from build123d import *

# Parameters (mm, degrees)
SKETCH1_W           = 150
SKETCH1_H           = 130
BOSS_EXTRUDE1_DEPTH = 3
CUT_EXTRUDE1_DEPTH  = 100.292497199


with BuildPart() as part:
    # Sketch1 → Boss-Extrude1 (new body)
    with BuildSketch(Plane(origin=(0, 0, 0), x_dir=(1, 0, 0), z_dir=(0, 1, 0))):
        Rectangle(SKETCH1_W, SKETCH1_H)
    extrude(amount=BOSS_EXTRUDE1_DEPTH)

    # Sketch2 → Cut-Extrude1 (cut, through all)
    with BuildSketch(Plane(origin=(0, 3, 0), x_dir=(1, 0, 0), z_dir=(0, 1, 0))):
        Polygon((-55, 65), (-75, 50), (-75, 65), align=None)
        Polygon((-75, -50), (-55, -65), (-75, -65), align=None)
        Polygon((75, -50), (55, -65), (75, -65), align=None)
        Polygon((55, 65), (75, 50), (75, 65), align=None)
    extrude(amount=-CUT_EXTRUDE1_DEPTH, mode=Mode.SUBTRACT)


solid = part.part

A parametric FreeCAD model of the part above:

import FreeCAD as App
import Part
import Sketcher
from FreeCAD import Vector
Q = App.Units.Quantity

doc = App.newDocument("Part")
params = doc.addObject("Spreadsheet::Sheet", "Params")
for row, (alias, value) in enumerate([
    ("sketch1_width", "150 mm"),
    ("sketch1_height", "130 mm"),
    ("pad1_length", "3 mm"),
    ("sketch2_width", "20 mm"),
    ("sketch2_height", "15 mm"),
], start=1):
    params.set(f"A{row}", alias)
    params.set(f"B{row}", "=" + value)
    params.setAlias(f"B{row}", alias)

body = doc.addObject("PartDesign::Body", "Body")

sketch1 = body.newObject("Sketcher::SketchObject", "Sketch")
sketch1.AttachmentSupport = (doc.getObject("XZ_Plane"), [""])
sketch1.MapMode = "FlatFace"
sketch1.addGeometry([
    Part.LineSegment(Vector(-75, -65, 0), Vector(-75, 65, 0)),
    Part.LineSegment(Vector(-75, 65, 0), Vector(75, 65, 0)),
    Part.LineSegment(Vector(75, 65, 0), Vector(75, -65, 0)),
    Part.LineSegment(Vector(75, -65, 0), Vector(-75, -65, 0)),
], False)
sketch1.addConstraint([
    Sketcher.Constraint("Coincident", 0, 2, 1, 1),
    Sketcher.Constraint("Coincident", 1, 2, 2, 1),
    Sketcher.Constraint("Coincident", 2, 2, 3, 1),
    Sketcher.Constraint("Coincident", 3, 2, 0, 1),
    Sketcher.Constraint("Vertical", 0),
    Sketcher.Constraint("Horizontal", 1),
    Sketcher.Constraint("Vertical", 2),
    Sketcher.Constraint("Horizontal", 3),
    Sketcher.Constraint("Symmetric", 0, 2, 2, 2, -1, 1),
    Sketcher.Constraint("DistanceX", 1, 1, 1, 2, Q("150 mm")),
    Sketcher.Constraint("DistanceY", 0, 1, 0, 2, Q("130 mm")),
])
sketch1.setExpression("Constraints[9]", "Params.sketch1_width")
sketch1.setExpression("Constraints[10]", "Params.sketch1_height")
pad1 = body.newObject("PartDesign::Pad", "Pad")
pad1.Profile = sketch1
pad1.setExpression("Length", "Params.pad1_length")
pad1.Reversed = True

sketch2 = body.newObject("Sketcher::SketchObject", "Sketch001")
sketch2.AttachmentSupport = (doc.getObject("XZ_Plane"), [""])
sketch2.MapMode = "FlatFace"
sketch2.AttachmentOffset = App.Placement(Vector(0, 0, -3), App.Rotation())
sketch2.addGeometry([
    Part.LineSegment(Vector(-75, -50, 0), Vector(-55, -65, 0)),
    Part.LineSegment(Vector(-55, -65, 0), Vector(-75, -65, 0)),
    Part.LineSegment(Vector(-75, -65, 0), Vector(-75, -50, 0)),
    Part.LineSegment(Vector(-55, 65, 0), Vector(-75, 50, 0)),
    Part.LineSegment(Vector(-75, 50, 0), Vector(-75, 65, 0)),
    Part.LineSegment(Vector(-75, 65, 0), Vector(-55, 65, 0)),
    Part.LineSegment(Vector(75, 50, 0), Vector(55, 65, 0)),
    Part.LineSegment(Vector(55, 65, 0), Vector(75, 65, 0)),
    Part.LineSegment(Vector(75, 65, 0), Vector(75, 50, 0)),
    Part.LineSegment(Vector(55, -65, 0), Vector(75, -50, 0)),
    Part.LineSegment(Vector(75, -50, 0), Vector(75, -65, 0)),
    Part.LineSegment(Vector(75, -65, 0), Vector(55, -65, 0)),
], False)
sketch2.addConstraint([
    Sketcher.Constraint("Coincident", 0, 2, 1, 1),
    Sketcher.Constraint("Coincident", 1, 2, 2, 1),
    Sketcher.Constraint("Coincident", 2, 2, 0, 1),
    Sketcher.Constraint("Coincident", 3, 2, 4, 1),
    Sketcher.Constraint("Coincident", 4, 2, 5, 1),
    Sketcher.Constraint("Coincident", 5, 2, 3, 1),
    Sketcher.Constraint("Coincident", 6, 2, 7, 1),
    Sketcher.Constraint("Coincident", 7, 2, 8, 1),
    Sketcher.Constraint("Coincident", 8, 2, 6, 1),
    Sketcher.Constraint("Coincident", 9, 2, 10, 1),
    Sketcher.Constraint("Coincident", 10, 2, 11, 1),
    Sketcher.Constraint("Coincident", 11, 2, 9, 1),
    Sketcher.Constraint("Horizontal", 1),
    Sketcher.Constraint("Vertical", 2),
    Sketcher.Constraint("Vertical", 4),
    Sketcher.Constraint("Horizontal", 5),
    Sketcher.Constraint("Horizontal", 7),
    Sketcher.Constraint("Vertical", 8),
    Sketcher.Constraint("Vertical", 10),
    Sketcher.Constraint("Horizontal", 11),
    Sketcher.Constraint("Symmetric", 0, 2, 6, 2, -1, 1),
    Sketcher.Constraint("Symmetric", 2, 2, 8, 2, -1, 1),
    Sketcher.Constraint("Symmetric", 3, 2, 9, 2, -1, 1),
    Sketcher.Constraint("Symmetric", 5, 2, 11, 2, -1, 1),
    Sketcher.Constraint("Symmetric", 5, 2, 6, 2, -2),
    Sketcher.Constraint("Symmetric", 3, 2, 8, 2, -2),
    Sketcher.Constraint("DistanceX", 1, 2, 1, 1, Q("20 mm")),
    Sketcher.Constraint("DistanceY", 2, 1, 2, 2, Q("15 mm")),
    Sketcher.Constraint("DistanceX", 0, 2, -1, 1, Q("55 mm")),
    Sketcher.Constraint("DistanceY", 0, 2, -1, 1, Q("65 mm")),
])
sketch2.setExpression("Constraints[26]", "Params.sketch2_width")
sketch2.setExpression("Constraints[27]", "Params.sketch2_height")
pocket1 = body.newObject("PartDesign::Pocket", "Pocket")
pocket1.Profile = sketch2
pocket1.Type = "ThroughAll"
pocket1.Reversed = True

doc.recompute()
